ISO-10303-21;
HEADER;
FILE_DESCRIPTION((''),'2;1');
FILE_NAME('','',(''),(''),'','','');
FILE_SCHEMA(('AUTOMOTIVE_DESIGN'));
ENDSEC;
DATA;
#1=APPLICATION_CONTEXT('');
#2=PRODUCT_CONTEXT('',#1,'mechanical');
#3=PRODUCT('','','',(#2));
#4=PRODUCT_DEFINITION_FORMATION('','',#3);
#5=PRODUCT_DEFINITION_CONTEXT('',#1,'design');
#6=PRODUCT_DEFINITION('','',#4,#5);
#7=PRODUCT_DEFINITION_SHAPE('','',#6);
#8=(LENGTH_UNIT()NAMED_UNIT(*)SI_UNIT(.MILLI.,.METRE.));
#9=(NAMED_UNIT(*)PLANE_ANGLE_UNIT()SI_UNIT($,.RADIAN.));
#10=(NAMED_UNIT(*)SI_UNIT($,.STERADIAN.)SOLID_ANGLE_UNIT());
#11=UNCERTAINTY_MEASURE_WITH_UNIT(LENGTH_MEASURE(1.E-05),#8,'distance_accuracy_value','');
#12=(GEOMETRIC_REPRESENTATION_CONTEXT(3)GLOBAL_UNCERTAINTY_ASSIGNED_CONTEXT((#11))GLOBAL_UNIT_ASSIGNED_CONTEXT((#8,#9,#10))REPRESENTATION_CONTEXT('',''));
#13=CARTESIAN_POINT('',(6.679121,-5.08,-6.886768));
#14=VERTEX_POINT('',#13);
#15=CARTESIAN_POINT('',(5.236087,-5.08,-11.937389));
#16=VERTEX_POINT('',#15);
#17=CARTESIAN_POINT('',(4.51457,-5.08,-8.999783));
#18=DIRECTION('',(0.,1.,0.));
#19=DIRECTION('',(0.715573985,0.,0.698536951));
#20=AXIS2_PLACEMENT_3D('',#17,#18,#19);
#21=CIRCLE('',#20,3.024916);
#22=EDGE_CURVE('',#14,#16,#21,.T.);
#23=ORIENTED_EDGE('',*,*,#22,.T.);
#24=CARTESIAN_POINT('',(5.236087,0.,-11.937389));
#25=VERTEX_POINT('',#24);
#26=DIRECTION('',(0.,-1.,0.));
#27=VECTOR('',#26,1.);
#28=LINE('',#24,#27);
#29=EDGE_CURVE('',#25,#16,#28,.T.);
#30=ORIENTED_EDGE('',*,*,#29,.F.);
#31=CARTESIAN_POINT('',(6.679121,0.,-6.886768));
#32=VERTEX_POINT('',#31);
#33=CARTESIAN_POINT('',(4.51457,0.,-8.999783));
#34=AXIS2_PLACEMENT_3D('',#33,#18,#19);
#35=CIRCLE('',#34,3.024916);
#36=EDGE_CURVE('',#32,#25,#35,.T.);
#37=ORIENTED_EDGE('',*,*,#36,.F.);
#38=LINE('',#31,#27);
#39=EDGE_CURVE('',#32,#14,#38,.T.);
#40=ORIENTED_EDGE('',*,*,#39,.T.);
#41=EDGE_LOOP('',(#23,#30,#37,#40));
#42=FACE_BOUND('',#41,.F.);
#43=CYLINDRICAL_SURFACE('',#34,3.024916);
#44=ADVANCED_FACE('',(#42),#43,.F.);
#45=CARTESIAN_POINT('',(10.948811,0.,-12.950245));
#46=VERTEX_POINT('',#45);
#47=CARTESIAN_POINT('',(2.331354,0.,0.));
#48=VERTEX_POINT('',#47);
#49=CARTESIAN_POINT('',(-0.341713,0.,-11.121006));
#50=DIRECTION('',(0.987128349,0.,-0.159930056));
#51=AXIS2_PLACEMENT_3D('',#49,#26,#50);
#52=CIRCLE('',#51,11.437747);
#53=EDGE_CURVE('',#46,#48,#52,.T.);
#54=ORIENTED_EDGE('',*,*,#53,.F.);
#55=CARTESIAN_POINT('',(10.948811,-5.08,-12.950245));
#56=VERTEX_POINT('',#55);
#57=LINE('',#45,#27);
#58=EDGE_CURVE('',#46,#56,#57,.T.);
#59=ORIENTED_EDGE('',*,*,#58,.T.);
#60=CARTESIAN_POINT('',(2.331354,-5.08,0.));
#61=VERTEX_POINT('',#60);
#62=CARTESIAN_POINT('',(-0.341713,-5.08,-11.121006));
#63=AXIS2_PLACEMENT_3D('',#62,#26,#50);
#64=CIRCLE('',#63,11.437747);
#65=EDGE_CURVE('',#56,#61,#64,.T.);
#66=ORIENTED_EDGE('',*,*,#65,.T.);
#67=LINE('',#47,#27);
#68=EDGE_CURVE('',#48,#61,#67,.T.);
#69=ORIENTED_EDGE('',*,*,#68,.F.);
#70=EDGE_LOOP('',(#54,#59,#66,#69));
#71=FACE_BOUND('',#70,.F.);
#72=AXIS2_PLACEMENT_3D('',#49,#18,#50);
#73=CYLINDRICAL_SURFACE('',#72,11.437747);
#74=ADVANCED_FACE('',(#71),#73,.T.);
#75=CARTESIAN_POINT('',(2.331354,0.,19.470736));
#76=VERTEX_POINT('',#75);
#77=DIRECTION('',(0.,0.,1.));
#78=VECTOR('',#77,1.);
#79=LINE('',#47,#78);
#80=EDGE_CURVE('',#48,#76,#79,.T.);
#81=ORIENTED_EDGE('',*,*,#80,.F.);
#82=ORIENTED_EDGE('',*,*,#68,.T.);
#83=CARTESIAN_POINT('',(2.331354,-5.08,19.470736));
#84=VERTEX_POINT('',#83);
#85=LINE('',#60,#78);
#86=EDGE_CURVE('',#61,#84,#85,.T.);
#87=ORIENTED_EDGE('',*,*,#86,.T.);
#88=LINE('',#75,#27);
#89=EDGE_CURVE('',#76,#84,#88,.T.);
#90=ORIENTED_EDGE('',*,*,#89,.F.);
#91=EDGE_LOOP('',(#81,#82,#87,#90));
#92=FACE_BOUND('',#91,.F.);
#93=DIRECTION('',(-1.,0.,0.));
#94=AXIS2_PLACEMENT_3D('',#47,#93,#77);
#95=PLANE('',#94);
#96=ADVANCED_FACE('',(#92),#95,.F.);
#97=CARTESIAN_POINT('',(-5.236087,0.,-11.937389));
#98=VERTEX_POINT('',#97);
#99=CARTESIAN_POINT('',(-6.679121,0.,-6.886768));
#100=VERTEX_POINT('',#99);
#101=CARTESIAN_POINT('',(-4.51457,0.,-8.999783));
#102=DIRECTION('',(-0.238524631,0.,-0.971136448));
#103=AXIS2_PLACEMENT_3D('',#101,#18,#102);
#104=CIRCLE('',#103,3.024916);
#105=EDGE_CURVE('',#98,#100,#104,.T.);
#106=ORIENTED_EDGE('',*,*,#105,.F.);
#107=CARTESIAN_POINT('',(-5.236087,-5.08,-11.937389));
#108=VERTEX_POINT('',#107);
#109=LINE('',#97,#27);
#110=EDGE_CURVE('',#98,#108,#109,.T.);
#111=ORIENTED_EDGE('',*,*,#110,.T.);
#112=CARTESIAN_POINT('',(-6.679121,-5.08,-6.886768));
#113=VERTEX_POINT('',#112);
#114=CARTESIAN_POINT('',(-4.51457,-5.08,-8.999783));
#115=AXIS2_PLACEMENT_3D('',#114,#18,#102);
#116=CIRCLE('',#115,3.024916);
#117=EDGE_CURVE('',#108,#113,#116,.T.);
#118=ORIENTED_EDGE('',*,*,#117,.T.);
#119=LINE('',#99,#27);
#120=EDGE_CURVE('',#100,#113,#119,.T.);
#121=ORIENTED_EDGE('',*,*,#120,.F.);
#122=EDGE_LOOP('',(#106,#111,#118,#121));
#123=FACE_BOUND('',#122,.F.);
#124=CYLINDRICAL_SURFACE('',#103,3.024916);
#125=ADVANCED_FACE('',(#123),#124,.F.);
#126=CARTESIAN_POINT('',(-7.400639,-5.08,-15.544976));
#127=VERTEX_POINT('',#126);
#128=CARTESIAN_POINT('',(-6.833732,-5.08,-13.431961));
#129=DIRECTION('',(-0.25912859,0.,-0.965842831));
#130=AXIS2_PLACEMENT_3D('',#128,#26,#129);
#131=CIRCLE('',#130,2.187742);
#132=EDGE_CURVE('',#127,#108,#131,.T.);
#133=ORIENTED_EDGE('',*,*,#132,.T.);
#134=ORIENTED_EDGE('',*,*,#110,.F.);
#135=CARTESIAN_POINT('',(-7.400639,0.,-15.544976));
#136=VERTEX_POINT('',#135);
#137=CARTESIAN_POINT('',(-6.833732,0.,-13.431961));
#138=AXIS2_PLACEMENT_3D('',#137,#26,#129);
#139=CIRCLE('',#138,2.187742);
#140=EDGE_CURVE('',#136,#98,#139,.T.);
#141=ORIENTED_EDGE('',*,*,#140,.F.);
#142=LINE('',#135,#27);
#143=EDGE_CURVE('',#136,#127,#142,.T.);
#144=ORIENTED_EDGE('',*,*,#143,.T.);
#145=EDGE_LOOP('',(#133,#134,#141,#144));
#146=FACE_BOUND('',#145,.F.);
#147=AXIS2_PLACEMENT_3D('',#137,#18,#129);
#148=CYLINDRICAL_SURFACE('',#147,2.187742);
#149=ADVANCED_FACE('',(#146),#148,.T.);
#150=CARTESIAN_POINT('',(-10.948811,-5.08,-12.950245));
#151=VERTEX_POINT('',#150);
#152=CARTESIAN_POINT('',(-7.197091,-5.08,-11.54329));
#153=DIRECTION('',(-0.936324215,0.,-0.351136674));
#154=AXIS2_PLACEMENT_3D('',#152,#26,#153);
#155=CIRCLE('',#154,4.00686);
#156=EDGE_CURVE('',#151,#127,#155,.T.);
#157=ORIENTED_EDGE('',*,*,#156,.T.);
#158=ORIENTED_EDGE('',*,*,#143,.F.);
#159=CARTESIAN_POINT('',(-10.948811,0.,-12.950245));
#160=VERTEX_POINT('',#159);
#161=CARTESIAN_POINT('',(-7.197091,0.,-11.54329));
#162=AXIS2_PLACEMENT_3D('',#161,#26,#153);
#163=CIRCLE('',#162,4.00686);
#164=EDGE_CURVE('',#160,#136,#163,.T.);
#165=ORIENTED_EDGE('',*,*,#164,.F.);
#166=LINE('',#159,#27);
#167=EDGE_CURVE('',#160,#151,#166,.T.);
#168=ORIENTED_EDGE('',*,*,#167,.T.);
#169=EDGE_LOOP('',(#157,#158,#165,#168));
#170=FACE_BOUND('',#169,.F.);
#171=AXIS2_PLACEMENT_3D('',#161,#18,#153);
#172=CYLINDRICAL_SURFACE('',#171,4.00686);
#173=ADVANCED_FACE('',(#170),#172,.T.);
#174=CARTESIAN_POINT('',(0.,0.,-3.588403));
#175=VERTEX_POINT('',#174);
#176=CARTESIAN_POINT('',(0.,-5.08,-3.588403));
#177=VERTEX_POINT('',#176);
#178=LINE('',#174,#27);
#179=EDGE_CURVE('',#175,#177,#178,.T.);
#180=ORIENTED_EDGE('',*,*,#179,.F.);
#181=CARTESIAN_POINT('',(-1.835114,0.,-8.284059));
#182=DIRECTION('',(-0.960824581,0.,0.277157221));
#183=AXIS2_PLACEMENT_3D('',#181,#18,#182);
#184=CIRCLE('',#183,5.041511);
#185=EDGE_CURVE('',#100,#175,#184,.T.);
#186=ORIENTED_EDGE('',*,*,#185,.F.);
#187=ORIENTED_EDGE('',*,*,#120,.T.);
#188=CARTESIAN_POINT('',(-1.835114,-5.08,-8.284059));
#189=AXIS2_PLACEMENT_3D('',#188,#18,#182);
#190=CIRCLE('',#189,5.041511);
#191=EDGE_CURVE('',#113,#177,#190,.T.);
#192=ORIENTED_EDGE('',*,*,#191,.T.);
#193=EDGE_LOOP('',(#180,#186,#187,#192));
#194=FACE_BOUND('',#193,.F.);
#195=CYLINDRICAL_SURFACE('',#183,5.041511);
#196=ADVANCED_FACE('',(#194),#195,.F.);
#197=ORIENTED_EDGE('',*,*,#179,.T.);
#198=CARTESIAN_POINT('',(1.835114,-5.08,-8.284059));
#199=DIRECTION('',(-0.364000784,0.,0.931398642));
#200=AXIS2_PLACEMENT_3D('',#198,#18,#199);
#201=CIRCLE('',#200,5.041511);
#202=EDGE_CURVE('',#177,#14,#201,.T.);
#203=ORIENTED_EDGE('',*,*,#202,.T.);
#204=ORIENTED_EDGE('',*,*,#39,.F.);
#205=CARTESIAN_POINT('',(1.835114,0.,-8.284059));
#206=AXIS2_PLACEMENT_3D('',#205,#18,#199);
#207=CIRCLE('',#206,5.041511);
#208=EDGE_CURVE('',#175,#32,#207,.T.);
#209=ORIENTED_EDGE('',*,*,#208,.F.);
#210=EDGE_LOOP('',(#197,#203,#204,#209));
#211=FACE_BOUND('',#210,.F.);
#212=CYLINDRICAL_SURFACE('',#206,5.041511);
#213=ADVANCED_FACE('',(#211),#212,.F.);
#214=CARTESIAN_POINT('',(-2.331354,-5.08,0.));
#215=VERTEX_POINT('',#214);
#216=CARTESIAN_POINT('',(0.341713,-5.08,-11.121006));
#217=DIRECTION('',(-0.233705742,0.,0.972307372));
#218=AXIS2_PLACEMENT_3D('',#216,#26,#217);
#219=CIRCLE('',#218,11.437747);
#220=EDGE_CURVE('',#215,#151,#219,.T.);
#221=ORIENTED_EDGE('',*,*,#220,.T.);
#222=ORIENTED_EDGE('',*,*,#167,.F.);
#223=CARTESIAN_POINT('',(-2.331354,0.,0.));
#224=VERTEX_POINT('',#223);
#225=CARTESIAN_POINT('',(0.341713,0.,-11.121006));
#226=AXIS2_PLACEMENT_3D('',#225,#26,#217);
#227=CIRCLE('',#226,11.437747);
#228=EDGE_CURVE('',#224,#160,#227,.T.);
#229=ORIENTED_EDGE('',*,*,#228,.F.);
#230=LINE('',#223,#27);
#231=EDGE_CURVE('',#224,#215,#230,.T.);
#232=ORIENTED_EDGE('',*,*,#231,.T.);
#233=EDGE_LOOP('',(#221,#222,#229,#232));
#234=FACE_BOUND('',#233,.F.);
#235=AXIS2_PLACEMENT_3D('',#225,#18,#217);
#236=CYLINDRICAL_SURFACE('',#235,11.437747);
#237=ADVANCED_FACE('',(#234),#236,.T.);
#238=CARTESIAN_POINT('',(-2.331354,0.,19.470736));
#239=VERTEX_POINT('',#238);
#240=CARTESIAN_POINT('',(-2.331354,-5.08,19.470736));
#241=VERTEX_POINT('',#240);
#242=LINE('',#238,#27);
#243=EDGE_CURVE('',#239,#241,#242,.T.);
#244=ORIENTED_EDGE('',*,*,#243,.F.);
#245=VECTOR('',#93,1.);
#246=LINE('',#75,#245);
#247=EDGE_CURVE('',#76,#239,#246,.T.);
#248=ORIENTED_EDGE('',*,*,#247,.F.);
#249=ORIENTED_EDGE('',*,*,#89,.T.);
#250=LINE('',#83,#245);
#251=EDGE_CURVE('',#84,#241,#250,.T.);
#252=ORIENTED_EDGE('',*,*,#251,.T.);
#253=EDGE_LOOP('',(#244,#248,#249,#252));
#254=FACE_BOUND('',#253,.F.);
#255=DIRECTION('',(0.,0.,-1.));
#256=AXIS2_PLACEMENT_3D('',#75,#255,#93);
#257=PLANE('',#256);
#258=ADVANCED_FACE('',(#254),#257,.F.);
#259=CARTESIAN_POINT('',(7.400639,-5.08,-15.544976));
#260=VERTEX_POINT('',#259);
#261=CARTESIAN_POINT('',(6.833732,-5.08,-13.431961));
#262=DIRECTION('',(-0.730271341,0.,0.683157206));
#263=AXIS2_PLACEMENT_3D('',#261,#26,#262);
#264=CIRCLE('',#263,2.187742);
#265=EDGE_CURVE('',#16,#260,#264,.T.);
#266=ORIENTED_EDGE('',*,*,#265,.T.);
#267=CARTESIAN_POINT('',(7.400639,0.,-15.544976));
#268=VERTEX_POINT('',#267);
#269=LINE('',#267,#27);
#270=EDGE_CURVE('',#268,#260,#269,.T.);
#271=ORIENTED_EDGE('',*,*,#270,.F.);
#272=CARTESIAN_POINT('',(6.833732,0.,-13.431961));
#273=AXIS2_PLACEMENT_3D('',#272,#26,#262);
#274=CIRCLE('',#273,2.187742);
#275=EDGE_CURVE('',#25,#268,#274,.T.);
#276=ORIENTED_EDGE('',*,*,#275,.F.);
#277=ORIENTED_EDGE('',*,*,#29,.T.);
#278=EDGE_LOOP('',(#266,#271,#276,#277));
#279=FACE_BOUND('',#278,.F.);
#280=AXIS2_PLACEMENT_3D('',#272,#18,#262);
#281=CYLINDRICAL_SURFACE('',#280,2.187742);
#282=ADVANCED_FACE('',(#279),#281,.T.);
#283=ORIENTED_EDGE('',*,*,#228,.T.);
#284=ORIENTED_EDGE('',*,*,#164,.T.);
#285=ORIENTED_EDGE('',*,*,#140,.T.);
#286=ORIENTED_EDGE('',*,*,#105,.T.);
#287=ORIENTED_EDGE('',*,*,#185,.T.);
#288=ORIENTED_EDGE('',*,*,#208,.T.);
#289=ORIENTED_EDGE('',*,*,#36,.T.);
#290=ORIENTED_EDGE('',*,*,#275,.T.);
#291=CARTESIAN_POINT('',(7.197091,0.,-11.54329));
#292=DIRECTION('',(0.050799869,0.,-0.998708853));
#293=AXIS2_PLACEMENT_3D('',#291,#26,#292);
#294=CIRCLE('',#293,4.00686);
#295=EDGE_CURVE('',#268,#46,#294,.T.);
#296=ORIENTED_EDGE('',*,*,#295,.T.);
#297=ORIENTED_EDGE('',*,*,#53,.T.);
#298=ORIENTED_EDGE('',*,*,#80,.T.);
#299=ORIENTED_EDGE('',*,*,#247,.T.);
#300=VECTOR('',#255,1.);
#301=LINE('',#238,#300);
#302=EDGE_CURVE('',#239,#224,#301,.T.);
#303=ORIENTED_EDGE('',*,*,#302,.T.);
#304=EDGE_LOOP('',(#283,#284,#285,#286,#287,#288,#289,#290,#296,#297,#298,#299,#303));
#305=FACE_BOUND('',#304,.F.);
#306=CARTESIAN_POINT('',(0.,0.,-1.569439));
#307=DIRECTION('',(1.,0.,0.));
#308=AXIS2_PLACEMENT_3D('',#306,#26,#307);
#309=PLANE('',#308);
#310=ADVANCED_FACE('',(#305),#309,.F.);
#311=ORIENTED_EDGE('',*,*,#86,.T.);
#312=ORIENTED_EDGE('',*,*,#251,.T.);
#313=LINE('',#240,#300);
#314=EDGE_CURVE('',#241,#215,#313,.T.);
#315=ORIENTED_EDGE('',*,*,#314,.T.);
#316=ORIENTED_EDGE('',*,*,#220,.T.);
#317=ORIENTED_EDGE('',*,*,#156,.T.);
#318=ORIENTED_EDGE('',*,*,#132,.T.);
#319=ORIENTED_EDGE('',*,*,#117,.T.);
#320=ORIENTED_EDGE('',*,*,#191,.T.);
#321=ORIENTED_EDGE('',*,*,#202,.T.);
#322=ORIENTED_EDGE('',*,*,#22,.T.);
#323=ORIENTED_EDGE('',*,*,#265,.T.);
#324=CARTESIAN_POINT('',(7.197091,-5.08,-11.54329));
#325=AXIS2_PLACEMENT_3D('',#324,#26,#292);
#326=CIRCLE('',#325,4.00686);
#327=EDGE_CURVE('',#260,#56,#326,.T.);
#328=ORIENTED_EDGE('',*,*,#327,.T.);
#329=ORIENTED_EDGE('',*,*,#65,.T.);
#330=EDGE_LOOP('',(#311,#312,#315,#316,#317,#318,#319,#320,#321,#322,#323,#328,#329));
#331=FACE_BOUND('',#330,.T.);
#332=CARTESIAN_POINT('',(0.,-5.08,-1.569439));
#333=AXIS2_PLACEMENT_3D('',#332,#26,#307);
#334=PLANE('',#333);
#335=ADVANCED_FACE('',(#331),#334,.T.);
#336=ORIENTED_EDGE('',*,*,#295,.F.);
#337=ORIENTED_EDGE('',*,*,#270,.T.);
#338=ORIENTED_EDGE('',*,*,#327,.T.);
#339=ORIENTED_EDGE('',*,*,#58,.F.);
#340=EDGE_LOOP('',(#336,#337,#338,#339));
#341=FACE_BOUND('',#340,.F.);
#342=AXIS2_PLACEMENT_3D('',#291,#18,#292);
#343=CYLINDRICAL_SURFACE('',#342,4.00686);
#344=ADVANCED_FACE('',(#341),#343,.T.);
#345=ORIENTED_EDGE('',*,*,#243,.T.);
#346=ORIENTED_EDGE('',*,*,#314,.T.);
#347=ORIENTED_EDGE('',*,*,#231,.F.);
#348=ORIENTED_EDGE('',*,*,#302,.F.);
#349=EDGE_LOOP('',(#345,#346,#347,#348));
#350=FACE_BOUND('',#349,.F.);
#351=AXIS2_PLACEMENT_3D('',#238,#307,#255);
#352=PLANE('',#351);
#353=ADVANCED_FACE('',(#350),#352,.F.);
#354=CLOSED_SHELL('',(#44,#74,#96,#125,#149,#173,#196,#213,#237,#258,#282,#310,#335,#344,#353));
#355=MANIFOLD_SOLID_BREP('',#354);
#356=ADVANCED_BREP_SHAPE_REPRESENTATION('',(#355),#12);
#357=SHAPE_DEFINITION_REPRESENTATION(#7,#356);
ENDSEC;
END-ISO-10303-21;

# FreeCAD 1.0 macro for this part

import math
import FreeCAD as App
import Part
import Sketcher
Q = App.Units.Quantity

doc = App.newDocument("Part")
body = doc.addObject("PartDesign::Body", "Body")

# Sketch on XZ plane
sketch1 = body.newObject("Sketcher::SketchObject", "Sketch")
sketch1.AttachmentSupport = (doc.getObject("XZ_Plane"), [""])
sketch1.MapMode = "FlatFace"
sketch1.addGeometry([
    Part.LineSegment(App.Vector(-2.331354, 19.470736, 0), App.Vector(-2.331354, 0, 0)),  # 0
    Part.ArcOfCircle(Part.Circle(App.Vector(0.341713, -11.121006, 0), App.Vector(0, 0, 1), 11.437747), math.radians(103.515343), math.radians(189.202836)),  # 1
    Part.ArcOfCircle(Part.Circle(App.Vector(-7.197091, -11.54329, 0), App.Vector(0, 0, 1), 4.00686), math.radians(-159.443145), math.radians(-92.911871)),  # 2
    Part.ArcOfCircle(Part.Circle(App.Vector(-6.833732, -13.431961, 0), App.Vector(0, 0, 1), 2.187742), math.radians(-105.018362), math.radians(43.090854)),  # 3
    Part.ArcOfCircle(Part.Circle(App.Vector(-4.51457, -8.999783, 0), App.Vector(0, 0, 1), 3.024916), math.radians(135.690259), math.radians(256.200521)),  # 4
    Part.ArcOfCircle(Part.Circle(App.Vector(-1.835114, -8.284059, 0), App.Vector(0, 0, 1), 5.041511), math.radians(68.653898), math.radians(163.909388)),  # 5
    Part.ArcOfCircle(Part.Circle(App.Vector(1.835114, -8.284059, 0), App.Vector(0, 0, 1), 5.041511), math.radians(16.090612), math.radians(111.346102)),  # 6
    Part.ArcOfCircle(Part.Circle(App.Vector(4.51457, -8.999783, 0), App.Vector(0, 0, 1), 3.024916), math.radians(-76.200521), math.radians(44.309741)),  # 7
    Part.ArcOfCircle(Part.Circle(App.Vector(6.833732, -13.431961, 0), App.Vector(0, 0, 1), 2.187742), math.radians(136.909146), math.radians(285.018362)),  # 8
    Part.ArcOfCircle(Part.Circle(App.Vector(7.197091, -11.54329, 0), App.Vector(0, 0, 1), 4.00686), math.radians(-87.088129), math.radians(-20.556855)),  # 9
    Part.ArcOfCircle(Part.Circle(App.Vector(-0.341713, -11.121006, 0), App.Vector(0, 0, 1), 11.437747), math.radians(-9.202836), math.radians(76.484657)),  # 10
    Part.LineSegment(App.Vector(2.331354, 0, 0), App.Vector(2.331354, 19.470736, 0)),  # 11
    Part.LineSegment(App.Vector(2.331354, 19.470736, 0), App.Vector(-2.331354, 19.470736, 0)),  # 12
], False)
sketch1.addConstraint([
    Sketcher.Constraint("Coincident", 0, 2, 1, 1),
    Sketcher.Constraint("Coincident", 1, 2, 2, 1),
    Sketcher.Constraint("Coincident", 2, 2, 3, 1),
    Sketcher.Constraint("Coincident", 3, 2, 4, 2),
    Sketcher.Constraint("Coincident", 4, 1, 5, 2),
    Sketcher.Constraint("Coincident", 5, 1, 6, 2),
    Sketcher.Constraint("Coincident", 6, 1, 7, 2),
    Sketcher.Constraint("Coincident", 7, 1, 8, 1),
    Sketcher.Constraint("Coincident", 8, 2, 9, 1),
    Sketcher.Constraint("Coincident", 9, 2, 10, 1),
    Sketcher.Constraint("Coincident", 10, 2, 11, 1),
    Sketcher.Constraint("Coincident", 11, 2, 12, 1),
    Sketcher.Constraint("Coincident", 12, 2, 0, 1),
    Sketcher.Constraint("Vertical", 0),
    Sketcher.Constraint("Vertical", 11),
    Sketcher.Constraint("Horizontal", 12),
    Sketcher.Constraint("Equal", 5, 6),
    Sketcher.Constraint("Equal", 4, 7),
    Sketcher.Constraint("Equal", 3, 8),
    Sketcher.Constraint("Equal", 2, 9),
    Sketcher.Constraint("Equal", 1, 10),
    Sketcher.Constraint("Symmetric", 0, 2, 10, 2, -1, 1),
    Sketcher.Constraint("Symmetric", 5, 3, 6, 3, -2),
    Sketcher.Constraint("Symmetric", 4, 3, 7, 3, -2),
    Sketcher.Constraint("Symmetric", 3, 3, 8, 3, -2),
    Sketcher.Constraint("Symmetric", 2, 3, 9, 3, -2),
    Sketcher.Constraint("Symmetric", 1, 3, 10, 3, -2),
    Sketcher.Constraint("Radius", 2, 4.00686),
    Sketcher.Constraint("Radius", 5, 5.041511),
    Sketcher.Constraint("Radius", 1, 11.437747),
    Sketcher.Constraint("Radius", 3, 2.187742),
    Sketcher.Constraint("Radius", 4, 3.024916),
    Sketcher.Constraint("DistanceX", 12, 2, 12, 1, 4.662708),
    Sketcher.Constraint("DistanceY", 3, 3, 5, 3, 5.147902),
    Sketcher.Constraint("DistanceX", 1, 3, 6, 3, 1.493401),
    Sketcher.Constraint("DistanceY", 3, 2, 2, 3, 0.394099),
    Sketcher.Constraint("DistanceY", 0, 2, 0, 1, 19.470736),
    Sketcher.Constraint("DistanceX", 2, 3, -1, 1, 7.197091),
    Sketcher.Constraint("DistanceY", 2, 3, -1, 1, 11.54329),
    Sketcher.Constraint("DistanceY", 3, 3, -1, 1, 13.431961),
    Sketcher.Constraint("DistanceX", 4, 3, -1, 1, 4.51457),
    Sketcher.Constraint("DistanceX", 1, 2, -1, 1, 10.948811),
    Sketcher.Constraint("DistanceX", 2, 2, -1, 1, 7.400639),
])
pad1 = body.newObject("PartDesign::Pad", "Pad")
pad1.Profile = sketch1
pad1.Length = Q("0.2 in")

doc.recompute()
